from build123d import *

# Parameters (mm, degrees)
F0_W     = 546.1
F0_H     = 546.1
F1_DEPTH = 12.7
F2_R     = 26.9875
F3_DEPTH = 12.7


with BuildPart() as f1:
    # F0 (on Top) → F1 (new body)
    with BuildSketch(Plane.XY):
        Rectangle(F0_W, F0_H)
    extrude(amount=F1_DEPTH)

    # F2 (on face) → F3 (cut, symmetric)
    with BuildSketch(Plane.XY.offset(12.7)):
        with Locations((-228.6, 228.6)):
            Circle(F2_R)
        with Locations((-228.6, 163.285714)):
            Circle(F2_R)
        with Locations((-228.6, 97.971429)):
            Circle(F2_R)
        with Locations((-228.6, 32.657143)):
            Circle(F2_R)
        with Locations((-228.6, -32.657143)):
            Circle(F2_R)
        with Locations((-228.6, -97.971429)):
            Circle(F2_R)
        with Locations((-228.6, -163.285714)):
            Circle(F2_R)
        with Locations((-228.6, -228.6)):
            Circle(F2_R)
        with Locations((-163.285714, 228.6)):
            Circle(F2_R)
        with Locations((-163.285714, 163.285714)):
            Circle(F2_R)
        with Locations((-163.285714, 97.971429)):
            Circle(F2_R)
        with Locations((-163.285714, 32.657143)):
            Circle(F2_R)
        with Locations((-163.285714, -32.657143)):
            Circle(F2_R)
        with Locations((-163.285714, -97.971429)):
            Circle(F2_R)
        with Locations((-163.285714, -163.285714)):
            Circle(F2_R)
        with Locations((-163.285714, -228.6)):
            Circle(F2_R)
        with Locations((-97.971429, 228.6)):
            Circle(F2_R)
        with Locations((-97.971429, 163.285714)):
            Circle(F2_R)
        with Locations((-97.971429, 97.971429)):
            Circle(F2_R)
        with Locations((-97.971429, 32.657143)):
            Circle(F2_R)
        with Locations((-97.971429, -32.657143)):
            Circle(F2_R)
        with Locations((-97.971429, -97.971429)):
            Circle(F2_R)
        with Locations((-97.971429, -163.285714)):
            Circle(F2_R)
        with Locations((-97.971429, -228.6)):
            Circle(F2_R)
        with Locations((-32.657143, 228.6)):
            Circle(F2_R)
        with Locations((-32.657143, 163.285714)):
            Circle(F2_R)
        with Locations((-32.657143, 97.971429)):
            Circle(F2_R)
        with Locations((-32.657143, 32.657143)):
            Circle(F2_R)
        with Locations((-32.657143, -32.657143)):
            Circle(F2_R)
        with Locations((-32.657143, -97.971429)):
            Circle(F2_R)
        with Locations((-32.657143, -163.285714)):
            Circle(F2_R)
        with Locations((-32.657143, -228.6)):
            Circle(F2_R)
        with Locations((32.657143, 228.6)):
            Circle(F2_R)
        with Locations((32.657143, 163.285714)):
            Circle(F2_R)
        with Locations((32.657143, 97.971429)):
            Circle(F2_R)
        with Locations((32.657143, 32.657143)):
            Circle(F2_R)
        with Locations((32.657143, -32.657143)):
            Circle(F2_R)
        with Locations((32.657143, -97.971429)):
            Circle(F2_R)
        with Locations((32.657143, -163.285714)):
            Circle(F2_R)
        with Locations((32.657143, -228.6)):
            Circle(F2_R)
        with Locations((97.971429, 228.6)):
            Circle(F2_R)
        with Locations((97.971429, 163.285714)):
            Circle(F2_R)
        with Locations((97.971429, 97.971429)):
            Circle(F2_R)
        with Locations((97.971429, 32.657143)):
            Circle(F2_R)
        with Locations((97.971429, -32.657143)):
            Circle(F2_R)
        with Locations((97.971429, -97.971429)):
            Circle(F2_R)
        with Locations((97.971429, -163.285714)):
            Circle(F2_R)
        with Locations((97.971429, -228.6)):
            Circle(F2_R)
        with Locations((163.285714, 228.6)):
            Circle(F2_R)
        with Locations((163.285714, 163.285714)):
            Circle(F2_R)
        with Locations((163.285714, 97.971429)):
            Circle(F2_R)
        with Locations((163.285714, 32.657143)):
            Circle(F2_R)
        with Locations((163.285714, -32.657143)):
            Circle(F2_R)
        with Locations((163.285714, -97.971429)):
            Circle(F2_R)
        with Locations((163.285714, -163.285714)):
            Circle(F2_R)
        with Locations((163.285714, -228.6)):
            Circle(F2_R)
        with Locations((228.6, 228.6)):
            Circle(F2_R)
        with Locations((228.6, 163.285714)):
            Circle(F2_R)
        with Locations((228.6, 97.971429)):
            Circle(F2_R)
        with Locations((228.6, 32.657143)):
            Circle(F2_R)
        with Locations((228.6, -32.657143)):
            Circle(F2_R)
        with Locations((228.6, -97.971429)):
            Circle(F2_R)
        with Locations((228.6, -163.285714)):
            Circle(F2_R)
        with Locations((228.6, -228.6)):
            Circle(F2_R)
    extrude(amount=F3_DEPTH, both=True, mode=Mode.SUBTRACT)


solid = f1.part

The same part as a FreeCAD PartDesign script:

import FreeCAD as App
import Part
import Sketcher
Q = App.Units.Quantity


def add_polygon(sketch, points):
    """Adds a closed chain of lines whose ends are joined by coincident constraints."""
    first, n = sketch.GeometryCount, len(points)
    for a, b in zip(points, points[1:] + points[:1]):
        sketch.addGeometry(Part.LineSegment(App.Vector(*a, 0), App.Vector(*b, 0)), False)
    for i in range(n):
        sketch.addConstraint(Sketcher.Constraint("Coincident", first + i, 2, first + (i + 1) % n, 1))

doc = App.newDocument("Part")
body = doc.addObject("PartDesign::Body", "Body")

# Sketch on XY plane
sketch1 = doc.addObject("Sketcher::SketchObject", "Sketch")
body.addObject(sketch1)
sketch1.AttachmentSupport = (doc.XY_Plane, [""])
sketch1.MapMode = "FlatFace"
add_polygon(sketch1, [(-273, 273), (-273, -273), (273, -273), (273, 273)])  # lines 0-3
sketch1.addConstraint([
    Sketcher.Constraint("Vertical", 0),
    Sketcher.Constraint("Horizontal", 1),
    Sketcher.Constraint("Vertical", 2),
    Sketcher.Constraint("Horizontal", 3),
    Sketcher.Constraint("Symmetric", 0, 2, 2, 2, -1, 1),
    Sketcher.Constraint("Equal", 3, 0),
    Sketcher.Constraint("DistanceX", 1, 1, 1, 2, Q("21.5 in")),
])
pad1 = doc.addObject("PartDesign::Pad", "Pad")
body.addObject(pad1)
pad1.Profile = sketch1
pad1.Length = Q("0.5 in")

# Sketch on XY plane
sketch2 = doc.addObject("Sketcher::SketchObject", "Sketch001")
body.addObject(sketch2)
sketch2.AttachmentSupport = (doc.XY_Plane, [""])
sketch2.MapMode = "FlatFace"
sketch2.AttachmentOffset = App.Placement(App.Vector(0, 0, 0.5 * 25.4), App.Rotation())
sketch2.addGeometry([
    Part.Circle(App.Vector(-229, 229, 0), App.Vector(0, 0, 1), 27),  # 0
    Part.Circle(App.Vector(-229, 163, 0), App.Vector(0, 0, 1), 27),  # 1
    Part.Circle(App.Vector(-229, 98, 0), App.Vector(0, 0, 1), 27),  # 2
    Part.Circle(App.Vector(-229, 33, 0), App.Vector(0, 0, 1), 27),  # 3
    Part.Circle(App.Vector(-229, -33, 0), App.Vector(0, 0, 1), 27),  # 4
    Part.Circle(App.Vector(-229, -98, 0), App.Vector(0, 0, 1), 27),  # 5
    Part.Circle(App.Vector(-229, -163, 0), App.Vector(0, 0, 1), 27),  # 6
    Part.Circle(App.Vector(-229, -229, 0), App.Vector(0, 0, 1), 27),  # 7
    Part.Circle(App.Vector(-163, 229, 0), App.Vector(0, 0, 1), 27),  # 8
    Part.Circle(App.Vector(-163, 163, 0), App.Vector(0, 0, 1), 27),  # 9
    Part.Circle(App.Vector(-163, 98, 0), App.Vector(0, 0, 1), 27),  # 10
    Part.Circle(App.Vector(-163, 33, 0), App.Vector(0, 0, 1), 27),  # 11
    Part.Circle(App.Vector(-163, -33, 0), App.Vector(0, 0, 1), 27),  # 12
    Part.Circle(App.Vector(-163, -98, 0), App.Vector(0, 0, 1), 27),  # 13
    Part.Circle(App.Vector(-163, -163, 0), App.Vector(0, 0, 1), 27),  # 14
    Part.Circle(App.Vector(-163, -229, 0), App.Vector(0, 0, 1), 27),  # 15
    Part.Circle(App.Vector(-98, 229, 0), App.Vector(0, 0, 1), 27),  # 16
    Part.Circle(App.Vector(-98, 163, 0), App.Vector(0, 0, 1), 27),  # 17
    Part.Circle(App.Vector(-98, 98, 0), App.Vector(0, 0, 1), 27),  # 18
    Part.Circle(App.Vector(-98, 33, 0), App.Vector(0, 0, 1), 27),  # 19
    Part.Circle(App.Vector(-98, -33, 0), App.Vector(0, 0, 1), 27),  # 20
    Part.Circle(App.Vector(-98, -98, 0), App.Vector(0, 0, 1), 27),  # 21
    Part.Circle(App.Vector(-98, -163, 0), App.Vector(0, 0, 1), 27),  # 22
    Part.Circle(App.Vector(-98, -229, 0), App.Vector(0, 0, 1), 27),  # 23
    Part.Circle(App.Vector(-33, 229, 0), App.Vector(0, 0, 1), 27),  # 24
    Part.Circle(App.Vector(-33, 163, 0), App.Vector(0, 0, 1), 27),  # 25
    Part.Circle(App.Vector(-33, 98, 0), App.Vector(0, 0, 1), 27),  # 26
    Part.Circle(App.Vector(-33, 33, 0), App.Vector(0, 0, 1), 27),  # 27
    Part.Circle(App.Vector(-33, -33, 0), App.Vector(0, 0, 1), 27),  # 28
    Part.Circle(App.Vector(-33, -98, 0), App.Vector(0, 0, 1), 27),  # 29
    Part.Circle(App.Vector(-33, -163, 0), App.Vector(0, 0, 1), 27),  # 30
    Part.Circle(App.Vector(-33, -229, 0), App.Vector(0, 0, 1), 27),  # 31
    Part.Circle(App.Vector(33, 229, 0), App.Vector(0, 0, 1), 27),  # 32
    Part.Circle(App.Vector(33, 163, 0), App.Vector(0, 0, 1), 27),  # 33
    Part.Circle(App.Vector(33, 98, 0), App.Vector(0, 0, 1), 27),  # 34
    Part.Circle(App.Vector(33, 33, 0), App.Vector(0, 0, 1), 27),  # 35
    Part.Circle(App.Vector(33, -33, 0), App.Vector(0, 0, 1), 27),  # 36
    Part.Circle(App.Vector(33, -98, 0), App.Vector(0, 0, 1), 27),  # 37
    Part.Circle(App.Vector(33, -163, 0), App.Vector(0, 0, 1), 27),  # 38
    Part.Circle(App.Vector(33, -229, 0), App.Vector(0, 0, 1), 27),  # 39
    Part.Circle(App.Vector(98, 229, 0), App.Vector(0, 0, 1), 27),  # 40
    Part.Circle(App.Vector(98, 163, 0), App.Vector(0, 0, 1), 27),  # 41
    Part.Circle(App.Vector(98, 98, 0), App.Vector(0, 0, 1), 27),  # 42
    Part.Circle(App.Vector(98, 33, 0), App.Vector(0, 0, 1), 27),  # 43
    Part.Circle(App.Vector(98, -33, 0), App.Vector(0, 0, 1), 27),  # 44
    Part.Circle(App.Vector(98, -98, 0), App.Vector(0, 0, 1), 27),  # 45
    Part.Circle(App.Vector(98, -163, 0), App.Vector(0, 0, 1), 27),  # 46
    Part.Circle(App.Vector(98, -229, 0), App.Vector(0, 0, 1), 27),  # 47
    Part.Circle(App.Vector(163, 229, 0), App.Vector(0, 0, 1), 27),  # 48
    Part.Circle(App.Vector(163, 163, 0), App.Vector(0, 0, 1), 27),  # 49
    Part.Circle(App.Vector(163, 98, 0), App.Vector(0, 0, 1), 27),  # 50
    Part.Circle(App.Vector(163, 33, 0), App.Vector(0, 0, 1), 27),  # 51
    Part.Circle(App.Vector(163, -33, 0), App.Vector(0, 0, 1), 27),  # 52
    Part.Circle(App.Vector(163, -98, 0), App.Vector(0, 0, 1), 27),  # 53
    Part.Circle(App.Vector(163, -163, 0), App.Vector(0, 0, 1), 27),  # 54
    Part.Circle(App.Vector(163, -229, 0), App.Vector(0, 0, 1), 27),  # 55
    Part.Circle(App.Vector(229, 229, 0), App.Vector(0, 0, 1), 27),  # 56
    Part.Circle(App.Vector(229, 163, 0), App.Vector(0, 0, 1), 27),  # 57
    Part.Circle(App.Vector(229, 98, 0), App.Vector(0, 0, 1), 27),  # 58
    Part.Circle(App.Vector(229, 33, 0), App.Vector(0, 0, 1), 27),  # 59
    Part.Circle(App.Vector(229, -33, 0), App.Vector(0, 0, 1), 27),  # 60
    Part.Circle(App.Vector(229, -98, 0), App.Vector(0, 0, 1), 27),  # 61
    Part.Circle(App.Vector(229, -163, 0), App.Vector(0, 0, 1), 27),  # 62
    Part.Circle(App.Vector(229, -229, 0), App.Vector(0, 0, 1), 27),  # 63
], False)
sketch2.addConstraint([
    Sketcher.Constraint("Equal", 0, 1),
    Sketcher.Constraint("Equal", 1, 2),
    Sketcher.Constraint("Equal", 2, 3),
    Sketcher.Constraint("Equal", 3, 4),
    Sketcher.Constraint("Equal", 4, 5),
    Sketcher.Constraint("Equal", 5, 6),
    Sketcher.Constraint("Equal", 6, 7),
    Sketcher.Constraint("Equal", 7, 8),
    Sketcher.Constraint("Equal", 8, 9),
    Sketcher.Constraint("Equal", 9, 10),
    Sketcher.Constraint("Equal", 10, 11),
    Sketcher.Constraint("Equal", 11, 12),
    Sketcher.Constraint("Equal", 12, 13),
    Sketcher.Constraint("Equal", 13, 14),
    Sketcher.Constraint("Equal", 14, 15),
    Sketcher.Constraint("Equal", 15, 16),
    Sketcher.Constraint("Equal", 16, 17),
    Sketcher.Constraint("Equal", 17, 18),
    Sketcher.Constraint("Equal", 18, 19),
    Sketcher.Constraint("Equal", 19, 20),
    Sketcher.Constraint("Equal", 20, 21),
    Sketcher.Constraint("Equal", 21, 22),
    Sketcher.Constraint("Equal", 22, 23),
    Sketcher.Constraint("Equal", 23, 24),
    Sketcher.Constraint("Equal", 24, 25),
    Sketcher.Constraint("Equal", 25, 26),
    Sketcher.Constraint("Equal", 26, 27),
    Sketcher.Constraint("Equal", 27, 28),
    Sketcher.Constraint("Equal", 28, 29),
    Sketcher.Constraint("Equal", 29, 30),
    Sketcher.Constraint("Equal", 30, 31),
    Sketcher.Constraint("Equal", 31, 32),
    Sketcher.Constraint("Equal", 32, 33),
    Sketcher.Constraint("Equal", 33, 34),
    Sketcher.Constraint("Equal", 34, 35),
    Sketcher.Constraint("Equal", 35, 36),
    Sketcher.Constraint("Equal", 36, 37),
    Sketcher.Constraint("Equal", 37, 38),
    Sketcher.Constraint("Equal", 38, 39),
    Sketcher.Constraint("Equal", 39, 40),
    Sketcher.Constraint("Equal", 40, 41),
    Sketcher.Constraint("Equal", 41, 42),
    Sketcher.Constraint("Equal", 42, 43),
    Sketcher.Constraint("Equal", 43, 44),
    Sketcher.Constraint("Equal", 44, 45),
    Sketcher.Constraint("Equal", 45, 46),
    Sketcher.Constraint("Equal", 46, 47),
    Sketcher.Constraint("Equal", 47, 48),
    Sketcher.Constraint("Equal", 48, 49),
    Sketcher.Constraint("Equal", 49, 50),
    Sketcher.Constraint("Equal", 50, 51),
    Sketcher.Constraint("Equal", 51, 52),
    Sketcher.Constraint("Equal", 52, 53),
    Sketcher.Constraint("Equal", 53, 54),
    Sketcher.Constraint("Equal", 54, 55),
    Sketcher.Constraint("Equal", 55, 56),
    Sketcher.Constraint("Equal", 56, 57),
    Sketcher.Constraint("Equal", 57, 58),
    Sketcher.Constraint("Equal", 58, 59),
    Sketcher.Constraint("Equal", 59, 60),
    Sketcher.Constraint("Equal", 60, 61),
    Sketcher.Constraint("Equal", 61, 62),
    Sketcher.Constraint("Equal", 62, 63),
    Sketcher.Constraint("Symmetric", 31, 3, 32, 3, -1, 1),
    Sketcher.Constraint("Symmetric", 30, 3, 33, 3, -1, 1),
    Sketcher.Constraint("Symmetric", 29, 3, 34, 3, -1, 1),
    Sketcher.Constraint("Symmetric", 28, 3, 35, 3, -1, 1),
    Sketcher.Constraint("Symmetric", 27, 3, 36, 3, -1, 1),
    Sketcher.Constraint("Symmetric", 26, 3, 37, 3, -1, 1),
    Sketcher.Constraint("Symmetric", 25, 3, 38, 3, -1, 1),
    Sketcher.Constraint("Symmetric", 24, 3, 39, 3, -1, 1),
    Sketcher.Constraint("Symmetric", 23, 3, 40, 3, -1, 1),
    Sketcher.Constraint("Symmetric", 22, 3, 41, 3, -1, 1),
    Sketcher.Constraint("Symmetric", 21, 3, 42, 3, -1, 1),
    Sketcher.Constraint("Symmetric", 20, 3, 43, 3, -1, 1),
    Sketcher.Constraint("Symmetric", 19, 3, 44, 3, -1, 1),
    Sketcher.Constraint("Symmetric", 18, 3, 45, 3, -1, 1),
    Sketcher.Constraint("Symmetric", 17, 3, 46, 3, -1, 1),
    Sketcher.Constraint("Symmetric", 16, 3, 47, 3, -1, 1),
    Sketcher.Constraint("Symmetric", 15, 3, 48, 3, -1, 1),
    Sketcher.Constraint("Symmetric", 14, 3, 49, 3, -1, 1),
    Sketcher.Constraint("Symmetric", 13, 3, 50, 3, -1, 1),
    Sketcher.Constraint("Symmetric", 12, 3, 51, 3, -1, 1),
    Sketcher.Constraint("Symmetric", 11, 3, 52, 3, -1, 1),
    Sketcher.Constraint("Symmetric", 10, 3, 53, 3, -1, 1),
    Sketcher.Constraint("Symmetric", 9, 3, 54, 3, -1, 1),
    Sketcher.Constraint("Symmetric", 8, 3, 55, 3, -1, 1),
    Sketcher.Constraint("Symmetric", 7, 3, 56, 3, -1, 1),
    Sketcher.Constraint("Symmetric", 6, 3, 57, 3, -1, 1),
    Sketcher.Constraint("Symmetric", 5, 3, 58, 3, -1, 1),
    Sketcher.Constraint("Symmetric", 4, 3, 59, 3, -1, 1),
    Sketcher.Constraint("Symmetric", 3, 3, 60, 3, -1, 1),
    Sketcher.Constraint("Symmetric", 2, 3, 61, 3, -1, 1),
    Sketcher.Constraint("Symmetric", 1, 3, 62, 3, -1, 1),
    Sketcher.Constraint("Symmetric", 0, 3, 63, 3, -1, 1),
    Sketcher.Constraint("Symmetric", 24, 3, 32, 3, -2),
    Sketcher.Constraint("Symmetric", 25, 3, 33, 3, -2),
    Sketcher.Constraint("Symmetric", 26, 3, 34, 3, -2),
    Sketcher.Constraint("Symmetric", 27, 3, 35, 3, -2),
    Sketcher.Constraint("Symmetric", 16, 3, 40, 3, -2),
    Sketcher.Constraint("Symmetric", 17, 3, 41, 3, -2),
    Sketcher.Constraint("Symmetric", 18, 3, 42, 3, -2),
    Sketcher.Constraint("Symmetric", 19, 3, 43, 3, -2),
    Sketcher.Constraint("Symmetric", 8, 3, 48, 3, -2),
    Sketcher.Constraint("Symmetric", 9, 3, 49, 3, -2),
    Sketcher.Constraint("Symmetric", 10, 3, 50, 3, -2),
    Sketcher.Constraint("Symmetric", 11, 3, 51, 3, -2),
    Sketcher.Constraint("Symmetric", 0, 3, 56, 3, -2),
    Sketcher.Constraint("Symmetric", 1, 3, 57, 3, -2),
    Sketcher.Constraint("Symmetric", 2, 3, 58, 3, -2),
    Sketcher.Constraint("Symmetric", 3, 3, 59, 3, -2),
    Sketcher.Constraint("Horizontal", 0, 3, 8, 3),
    Sketcher.Constraint("Horizontal", 1, 3, 9, 3),
    Sketcher.Constraint("Horizontal", 2, 3, 10, 3),
    Sketcher.Constraint("Horizontal", 3, 3, 11, 3),
    Sketcher.Constraint("Horizontal", 8, 3, 16, 3),
    Sketcher.Constraint("Horizontal", 9, 3, 17, 3),
    Sketcher.Constraint("Horizontal", 10, 3, 18, 3),
    Sketcher.Constraint("Horizontal", 11, 3, 19, 3),
    Sketcher.Constraint("Horizontal", 16, 3, 24, 3),
    Sketcher.Constraint("Horizontal", 17, 3, 25, 3),
    Sketcher.Constraint("Horizontal", 18, 3, 26, 3),
    Sketcher.Constraint("Horizontal", 19, 3, 27, 3),
    Sketcher.Constraint("Vertical", 0, 3, 1, 3),
    Sketcher.Constraint("Vertical", 1, 3, 2, 3),
    Sketcher.Constraint("Vertical", 2, 3, 3, 3),
    Sketcher.Constraint("Vertical", 8, 3, 9, 3),
    Sketcher.Constraint("Vertical", 9, 3, 10, 3),
    Sketcher.Constraint("Vertical", 10, 3, 11, 3),
    Sketcher.Constraint("Vertical", 16, 3, 17, 3),
    Sketcher.Constraint("Vertical", 17, 3, 18, 3),
    Sketcher.Constraint("Vertical", 18, 3, 19, 3),
    Sketcher.Constraint("Vertical", 24, 3, 25, 3),
    Sketcher.Constraint("Vertical", 25, 3, 26, 3),
    Sketcher.Constraint("Vertical", 26, 3, 27, 3),
    Sketcher.Constraint("Diameter", 0, Q("2.125 in")),
    Sketcher.Constraint("DistanceX", 0, 3, -1, 1, Q("9 in")),
    Sketcher.Constraint("DistanceY", -1, 1, 0, 3, Q("9 in")),
    Sketcher.Constraint("DistanceY", -1, 1, 2, 3, 97.971429),
    Sketcher.Constraint("DistanceX", 16, 3, -1, 1, 97.971429),
    Sketcher.Constraint("DistanceY", -1, 1, 1, 3, 163.285714),
    Sketcher.Constraint("DistanceY", -1, 1, 3, 3, 32.657143),
    Sketcher.Constraint("DistanceX", 8, 3, -1, 1, 163.285714),
    Sketcher.Constraint("DistanceX", 24, 3, -1, 1, 32.657143),
])
pocket1 = doc.addObject("PartDesign::Pocket", "Pocket")
body.addObject(pocket1)
pocket1.Profile = sketch2
pocket1.Length = Q("1 in")
pocket1.Midplane = True

doc.recompute()
